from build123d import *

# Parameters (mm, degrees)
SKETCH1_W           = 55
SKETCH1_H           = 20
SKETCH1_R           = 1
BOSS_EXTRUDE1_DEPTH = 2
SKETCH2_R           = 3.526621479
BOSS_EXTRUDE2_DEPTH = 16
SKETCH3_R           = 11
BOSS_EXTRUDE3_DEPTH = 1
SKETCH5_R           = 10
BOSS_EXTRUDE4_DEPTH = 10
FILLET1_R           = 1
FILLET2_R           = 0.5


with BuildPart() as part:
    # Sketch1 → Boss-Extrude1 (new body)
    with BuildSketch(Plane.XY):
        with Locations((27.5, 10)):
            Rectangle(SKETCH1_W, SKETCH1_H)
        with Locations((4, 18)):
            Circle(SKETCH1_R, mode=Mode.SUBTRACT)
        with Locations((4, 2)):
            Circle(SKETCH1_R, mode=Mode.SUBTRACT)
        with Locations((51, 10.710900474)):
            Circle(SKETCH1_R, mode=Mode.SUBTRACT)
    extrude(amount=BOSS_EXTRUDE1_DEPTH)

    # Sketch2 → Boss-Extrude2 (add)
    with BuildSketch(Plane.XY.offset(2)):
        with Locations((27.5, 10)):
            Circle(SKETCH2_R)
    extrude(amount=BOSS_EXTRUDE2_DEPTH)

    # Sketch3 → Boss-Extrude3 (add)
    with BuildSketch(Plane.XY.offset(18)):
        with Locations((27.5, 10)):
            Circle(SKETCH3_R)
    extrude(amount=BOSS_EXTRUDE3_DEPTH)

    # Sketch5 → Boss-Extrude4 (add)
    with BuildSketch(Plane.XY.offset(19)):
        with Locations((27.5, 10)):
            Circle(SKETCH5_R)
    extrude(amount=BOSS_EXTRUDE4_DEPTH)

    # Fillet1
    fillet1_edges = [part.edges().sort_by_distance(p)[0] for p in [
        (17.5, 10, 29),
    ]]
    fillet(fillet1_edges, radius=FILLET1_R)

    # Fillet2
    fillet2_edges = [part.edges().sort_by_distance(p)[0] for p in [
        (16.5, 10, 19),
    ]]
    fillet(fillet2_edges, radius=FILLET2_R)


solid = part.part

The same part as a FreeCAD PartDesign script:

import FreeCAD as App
import Part
import Sketcher

V = App.Vector
Q = App.Units.Quantity


def edges_at(feature, points):
    """Names of the edges that pass closest to the given points."""
    edges = feature.Shape.Edges
    near = lambda p: min(range(len(edges)), key=lambda i: edges[i].distToShape(Part.Vertex(*p))[0])
    return sorted({f"Edge{near(p) + 1}" for p in points})

doc = App.newDocument("Part")
body = doc.addObject("PartDesign::Body", "Body")

# Sketch on XY plane
sketch1 = body.newObject("Sketcher::SketchObject", "Sketch")
sketch1.AttachmentSupport = (doc.getObject("XY_Plane"), [""])
sketch1.MapMode = "FlatFace"
sketch1.addGeometry(Part.LineSegment(V(0, 20, 0), V(0, 0, 0)), False)
sketch1.addGeometry(Part.LineSegment(V(0, 0, 0), V(55, 0, 0)), False)
sketch1.addGeometry(Part.LineSegment(V(55, 0, 0), V(55, 20, 0)), False)
sketch1.addGeometry(Part.LineSegment(V(55, 20, 0), V(0, 20, 0)), False)
sketch1.addGeometry(Part.Circle(V(4, 2, 0), V(0, 0, 1), 1), False)
sketch1.addGeometry(Part.Circle(V(4, 18, 0), V(0, 0, 1), 1), False)
sketch1.addGeometry(Part.Circle(V(51, 10.7109, 0), V(0, 0, 1), 1), False)
sketch1.addConstraint(Sketcher.Constraint("Coincident", 0, 2, 1, 1))
sketch1.addConstraint(Sketcher.Constraint("Coincident", 1, 2, 2, 1))
sketch1.addConstraint(Sketcher.Constraint("Coincident", 2, 2, 3, 1))
sketch1.addConstraint(Sketcher.Constraint("Coincident", 3, 2, 0, 1))
sketch1.addConstraint(Sketcher.Constraint("Vertical", 0))
sketch1.addConstraint(Sketcher.Constraint("Horizontal", 1))
sketch1.addConstraint(Sketcher.Constraint("Vertical", 2))
sketch1.addConstraint(Sketcher.Constraint("Horizontal", 3))
sketch1.addConstraint(Sketcher.Constraint("Coincident", 0, 2, -1, 1))
sketch1.addConstraint(Sketcher.Constraint("Equal", 4, 5))
sketch1.addConstraint(Sketcher.Constraint("Equal", 5, 6))
sketch1.addConstraint(Sketcher.Constraint("Vertical", 4, 3, 5, 3))
sketch1.addConstraint(Sketcher.Constraint("Diameter", 4, Q("2 mm")))
sketch1.addConstraint(Sketcher.Constraint("DistanceX", 1, 1, 1, 2, Q("55 mm")))
sketch1.addConstraint(Sketcher.Constraint("DistanceY", 0, 2, 0, 1, Q("20 mm")))
sketch1.addConstraint(Sketcher.Constraint("DistanceX", -1, 1, 4, 3, Q("4 mm")))
sketch1.addConstraint(Sketcher.Constraint("DistanceY", -1, 1, 4, 3, Q("2 mm")))
sketch1.addConstraint(Sketcher.Constraint("DistanceY", -1, 1, 5, 3, Q("18 mm")))
sketch1.addConstraint(Sketcher.Constraint("DistanceX", -1, 1, 6, 3, Q("51 mm")))
sketch1.addConstraint(Sketcher.Constraint("DistanceY", -1, 1, 6, 3, Q("10.7109 mm")))
pad1 = body.newObject("PartDesign::Pad", "Pad")
pad1.Profile = sketch1
pad1.Length = 2

# Sketch on XY plane
sketch2 = body.newObject("Sketcher::SketchObject", "Sketch001")
sketch2.AttachmentSupport = (doc.getObject("XY_Plane"), [""])
sketch2.MapMode = "FlatFace"
sketch2.AttachmentOffset = App.Placement(V(0, 0, 2), App.Rotation())
sketch2.addGeometry(Part.Circle(V(27.5, 10, 0), V(0, 0, 1), 3.526621), False)
sketch2.addConstraint(Sketcher.Constraint("DistanceY", -1, 1, 0, 3, Q("10 mm")))
sketch2.addConstraint(Sketcher.Constraint("DistanceX", -1, 1, 0, 3, Q("27.5 mm")))
sketch2.addConstraint(Sketcher.Constraint("Diameter", 0, Q("7.053243 mm")))
pad2 = body.newObject("PartDesign::Pad", "Pad001")
pad2.Profile = sketch2
pad2.Length = 16

# Sketch on XY plane
sketch3 = body.newObject("Sketcher::SketchObject", "Sketch002")
sketch3.AttachmentSupport = (doc.getObject("XY_Plane"), [""])
sketch3.MapMode = "FlatFace"
sketch3.AttachmentOffset = App.Placement(V(0, 0, 18), App.Rotation())
sketch3.addGeometry(Part.Circle(V(27.5, 10, 0), V(0, 0, 1), 11), False)
sketch3.addConstraint(Sketcher.Constraint("Diameter", 0, Q("22 mm")))
sketch3.addConstraint(Sketcher.Constraint("DistanceY", -1, 1, 0, 3, Q("10 mm")))
sketch3.addConstraint(Sketcher.Constraint("DistanceX", -1, 1, 0, 3, Q("27.5 mm")))
pad3 = body.newObject("PartDesign::Pad", "Pad002")
pad3.Profile = sketch3
pad3.Length = 1

# Sketch on XY plane
sketch4 = body.newObject("Sketcher::SketchObject", "Sketch003")
sketch4.AttachmentSupport = (doc.getObject("XY_Plane"), [""])
sketch4.MapMode = "FlatFace"
sketch4.AttachmentOffset = App.Placement(V(0, 0, 19), App.Rotation())
sketch4.addGeometry(Part.Circle(V(27.5, 10, 0), V(0, 0, 1), 10), False)
sketch4.addConstraint(Sketcher.Constraint("Diameter", 0, Q("20 mm")))
sketch4.addConstraint(Sketcher.Constraint("DistanceY", -1, 1, 0, 3, Q("10 mm")))
sketch4.addConstraint(Sketcher.Constraint("DistanceX", -1, 1, 0, 3, Q("27.5 mm")))
pad4 = body.newObject("PartDesign::Pad", "Pad003")
pad4.Profile = sketch4
pad4.Length = 10
doc.recompute()

fillet = body.newObject("PartDesign::Fillet", "Fillet")
fillet.Base = (pad4, edges_at(pad4, [(17.5, 10, 29)]))
fillet.Radius = 1
doc.recompute()

fillet2 = body.newObject("PartDesign::Fillet", "Fillet001")
fillet2.Base = (fillet, edges_at(fillet, [(16.5, 10, 19)]))
fillet2.Radius = 0.5

doc.recompute()
